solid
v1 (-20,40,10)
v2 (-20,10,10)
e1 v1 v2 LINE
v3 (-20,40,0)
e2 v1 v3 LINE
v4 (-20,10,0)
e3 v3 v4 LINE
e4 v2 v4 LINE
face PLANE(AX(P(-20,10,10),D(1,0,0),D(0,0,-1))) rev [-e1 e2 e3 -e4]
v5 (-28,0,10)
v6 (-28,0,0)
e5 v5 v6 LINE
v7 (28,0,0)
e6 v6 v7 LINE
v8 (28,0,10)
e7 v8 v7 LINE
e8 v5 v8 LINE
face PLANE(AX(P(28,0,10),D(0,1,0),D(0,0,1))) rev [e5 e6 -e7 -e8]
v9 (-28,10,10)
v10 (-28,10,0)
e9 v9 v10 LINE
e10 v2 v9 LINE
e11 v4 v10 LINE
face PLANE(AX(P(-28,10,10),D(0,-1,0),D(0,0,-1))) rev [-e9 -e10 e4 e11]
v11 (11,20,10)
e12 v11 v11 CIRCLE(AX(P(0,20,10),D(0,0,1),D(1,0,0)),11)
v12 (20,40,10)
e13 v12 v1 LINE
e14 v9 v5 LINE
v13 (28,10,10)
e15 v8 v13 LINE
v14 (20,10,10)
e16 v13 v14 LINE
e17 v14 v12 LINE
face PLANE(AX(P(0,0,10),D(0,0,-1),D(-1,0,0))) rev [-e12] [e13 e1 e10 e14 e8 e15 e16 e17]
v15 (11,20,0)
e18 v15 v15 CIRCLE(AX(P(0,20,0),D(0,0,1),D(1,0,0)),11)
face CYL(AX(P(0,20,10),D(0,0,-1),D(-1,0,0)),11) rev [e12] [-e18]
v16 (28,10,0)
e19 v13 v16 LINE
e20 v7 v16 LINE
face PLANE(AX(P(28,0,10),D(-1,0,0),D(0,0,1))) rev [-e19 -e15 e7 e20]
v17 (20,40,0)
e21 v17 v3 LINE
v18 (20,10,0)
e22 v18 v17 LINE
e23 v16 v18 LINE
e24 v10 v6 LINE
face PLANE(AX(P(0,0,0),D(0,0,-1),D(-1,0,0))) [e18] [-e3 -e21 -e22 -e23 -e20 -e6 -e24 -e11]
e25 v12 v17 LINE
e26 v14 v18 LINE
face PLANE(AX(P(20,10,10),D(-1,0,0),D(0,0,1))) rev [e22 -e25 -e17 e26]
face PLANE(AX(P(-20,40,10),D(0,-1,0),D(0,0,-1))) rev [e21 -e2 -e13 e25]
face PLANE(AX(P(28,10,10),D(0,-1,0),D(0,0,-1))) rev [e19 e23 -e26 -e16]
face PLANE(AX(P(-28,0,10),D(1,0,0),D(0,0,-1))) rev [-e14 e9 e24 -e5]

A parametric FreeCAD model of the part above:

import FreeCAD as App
import Part
import Sketcher
from FreeCAD import Vector
Q = App.Units.Quantity


def add_polygon(sketch, points):
    """Adds a closed chain of lines whose ends are joined by coincident constraints."""
    first, n = sketch.GeometryCount, len(points)
    for a, b in zip(points, points[1:] + points[:1]):
        sketch.addGeometry(Part.LineSegment(App.Vector(*a, 0), App.Vector(*b, 0)), False)
    for i in range(n):
        sketch.addConstraint(Sketcher.Constraint("Coincident", first + i, 2, first + (i + 1) % n, 1))

doc = App.newDocument("Part")
body = doc.addObject("PartDesign::Body", "Body")

# Sketch on XY plane
sketch1 = body.newObject("Sketcher::SketchObject", "Sketch")
sketch1.AttachmentSupport = (doc.getObject("XY_Plane"), [""])
sketch1.MapMode = "FlatFace"
add_polygon(sketch1, [(-28, 0), (28, 0), (28, 10), (20, 10), (20, 40), (-20, 40), (-20, 10), (-28, 10)])  # lines 0-7
sketch1.addGeometry(Part.Circle(Vector(0, 20, 0), Vector(0, 0, 1), 11), False)  # 8
sketch1.addConstraint(Sketcher.Constraint("Horizontal", 0))
sketch1.addConstraint(Sketcher.Constraint("Vertical", 1))
sketch1.addConstraint(Sketcher.Constraint("Horizontal", 2))
sketch1.addConstraint(Sketcher.Constraint("Vertical", 3))
sketch1.addConstraint(Sketcher.Constraint("Horizontal", 4))
sketch1.addConstraint(Sketcher.Constraint("Vertical", 5))
sketch1.addConstraint(Sketcher.Constraint("Horizontal", 6))
sketch1.addConstraint(Sketcher.Constraint("Vertical", 7))
sketch1.addConstraint(Sketcher.Constraint("Symmetric", 0, 2, 7, 2, -1, 1))
sketch1.addConstraint(Sketcher.Constraint("Symmetric", 2, 2, 5, 2, -2))
sketch1.addConstraint(Sketcher.Constraint("PointOnObject", 8, 3, -2))
sketch1.addConstraint(Sketcher.Constraint("Diameter", 8, Q("22 mm")))
sketch1.addConstraint(Sketcher.Constraint("DistanceX", 0, 1, 0, 2, Q("56 mm")))
sketch1.addConstraint(Sketcher.Constraint("DistanceX", 2, 2, 2, 1, Q("8 mm")))
sketch1.addConstraint(Sketcher.Constraint("DistanceY", 1, 1, 1, 2, Q("10 mm")))
sketch1.addConstraint(Sketcher.Constraint("DistanceY", 3, 1, 3, 2, Q("30 mm")))
sketch1.addConstraint(Sketcher.Constraint("DistanceY", -1, 1, 8, 3, Q("20 mm")))
pad1 = body.newObject("PartDesign::Pad", "Pad")
pad1.Profile = sketch1
pad1.Length = 10

doc.recompute()
